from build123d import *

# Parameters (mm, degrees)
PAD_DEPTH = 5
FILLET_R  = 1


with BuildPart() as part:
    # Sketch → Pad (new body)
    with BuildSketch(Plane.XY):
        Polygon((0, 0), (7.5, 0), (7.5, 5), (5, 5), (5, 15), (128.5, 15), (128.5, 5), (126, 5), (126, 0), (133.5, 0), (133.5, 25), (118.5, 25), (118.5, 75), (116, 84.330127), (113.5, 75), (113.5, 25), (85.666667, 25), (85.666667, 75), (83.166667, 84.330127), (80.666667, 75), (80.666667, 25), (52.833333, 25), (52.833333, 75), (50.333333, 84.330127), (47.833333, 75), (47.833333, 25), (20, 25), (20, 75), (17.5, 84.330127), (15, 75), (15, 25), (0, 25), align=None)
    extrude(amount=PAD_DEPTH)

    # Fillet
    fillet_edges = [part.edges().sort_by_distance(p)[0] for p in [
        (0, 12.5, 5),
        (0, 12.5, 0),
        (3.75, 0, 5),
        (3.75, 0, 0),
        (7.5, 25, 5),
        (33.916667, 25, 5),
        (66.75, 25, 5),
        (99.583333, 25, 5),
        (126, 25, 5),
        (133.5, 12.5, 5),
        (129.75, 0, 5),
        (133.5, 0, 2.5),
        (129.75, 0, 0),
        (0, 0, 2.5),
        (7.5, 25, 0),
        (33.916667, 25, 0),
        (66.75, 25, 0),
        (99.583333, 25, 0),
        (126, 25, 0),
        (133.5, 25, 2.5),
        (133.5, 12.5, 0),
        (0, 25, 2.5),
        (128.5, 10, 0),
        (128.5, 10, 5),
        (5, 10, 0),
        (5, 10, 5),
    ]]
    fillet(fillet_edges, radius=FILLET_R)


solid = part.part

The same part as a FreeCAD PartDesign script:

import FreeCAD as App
import Part
import Sketcher
Q = App.Units.Quantity


def edges_at(feature, points):
    """Names of the edges that pass closest to the given points."""
    edges = feature.Shape.Edges
    near = lambda p: min(range(len(edges)), key=lambda i: edges[i].distToShape(Part.Vertex(*p))[0])
    return sorted({f"Edge{near(p) + 1}" for p in points})

doc = App.newDocument("Part")
body = doc.addObject("PartDesign::Body", "Body")

# Sketch on XY plane
sketch1 = body.newObject("Sketcher::SketchObject", "Sketch")
sketch1.AttachmentSupport = (doc.getObject("XY_Plane"), [""])
sketch1.MapMode = "FlatFace"
sketch1.addGeometry(Part.LineSegment(App.Vector(0, 0, 0), App.Vector(7.5, 0, 0)), False)
sketch1.addGeometry(Part.LineSegment(App.Vector(7.5, 0, 0), App.Vector(7.5, 5, 0)), False)
sketch1.addGeometry(Part.LineSegment(App.Vector(7.5, 5, 0), App.Vector(5, 5, 0)), False)
sketch1.addGeometry(Part.LineSegment(App.Vector(5, 5, 0), App.Vector(5, 15, 0)), False)
sketch1.addGeometry(Part.LineSegment(App.Vector(5, 15, 0), App.Vector(128.5, 15, 0)), False)
sketch1.addGeometry(Part.LineSegment(App.Vector(128.5, 15, 0), App.Vector(128.5, 5, 0)), False)
sketch1.addGeometry(Part.LineSegment(App.Vector(128.5, 5, 0), App.Vector(126, 5, 0)), False)
sketch1.addGeometry(Part.LineSegment(App.Vector(126, 5, 0), App.Vector(126, 0, 0)), False)
sketch1.addGeometry(Part.LineSegment(App.Vector(126, 0, 0), App.Vector(133.5, 0, 0)), False)
sketch1.addGeometry(Part.LineSegment(App.Vector(133.5, 0, 0), App.Vector(133.5, 25, 0)), False)
sketch1.addGeometry(Part.LineSegment(App.Vector(133.5, 25, 0), App.Vector(118.5, 25, 0)), False)
sketch1.addGeometry(Part.LineSegment(App.Vector(118.5, 25, 0), App.Vector(118.5, 75, 0)), False)
sketch1.addGeometry(Part.LineSegment(App.Vector(118.5, 75, 0), App.Vector(116, 84.3, 0)), False)
sketch1.addGeometry(Part.LineSegment(App.Vector(116, 84.3, 0), App.Vector(113.5, 75, 0)), False)
sketch1.addGeometry(Part.LineSegment(App.Vector(113.5, 75, 0), App.Vector(113.5, 25, 0)), False)
sketch1.addGeometry(Part.LineSegment(App.Vector(113.5, 25, 0), App.Vector(85.7, 25, 0)), False)
sketch1.addGeometry(Part.LineSegment(App.Vector(85.7, 25, 0), App.Vector(85.7, 75, 0)), False)
sketch1.addGeometry(Part.LineSegment(App.Vector(85.7, 75, 0), App.Vector(83.2, 84.3, 0)), False)
sketch1.addGeometry(Part.LineSegment(App.Vector(83.2, 84.3, 0), App.Vector(80.7, 75, 0)), False)
sketch1.addGeometry(Part.LineSegment(App.Vector(80.7, 75, 0), App.Vector(80.7, 25, 0)), False)
sketch1.addGeometry(Part.LineSegment(App.Vector(80.7, 25, 0), App.Vector(52.8, 25, 0)), False)
sketch1.addGeometry(Part.LineSegment(App.Vector(52.8, 25, 0), App.Vector(52.8, 75, 0)), False)
sketch1.addGeometry(Part.LineSegment(App.Vector(52.8, 75, 0), App.Vector(50.3, 84.3, 0)), False)
sketch1.addGeometry(Part.LineSegment(App.Vector(50.3, 84.3, 0), App.Vector(47.8, 75, 0)), False)
sketch1.addGeometry(Part.LineSegment(App.Vector(47.8, 75, 0), App.Vector(47.8, 25, 0)), False)
sketch1.addGeometry(Part.LineSegment(App.Vector(47.8, 25, 0), App.Vector(20, 25, 0)), False)
sketch1.addGeometry(Part.LineSegment(App.Vector(20, 25, 0), App.Vector(20, 75, 0)), False)
sketch1.addGeometry(Part.LineSegment(App.Vector(20, 75, 0), App.Vector(17.5, 84.3, 0)), False)
sketch1.addGeometry(Part.LineSegment(App.Vector(17.5, 84.3, 0), App.Vector(15, 75, 0)), False)
sketch1.addGeometry(Part.LineSegment(App.Vector(15, 75, 0), App.Vector(15, 25, 0)), False)
sketch1.addGeometry(Part.LineSegment(App.Vector(15, 25, 0), App.Vector(0, 25, 0)), False)
sketch1.addGeometry(Part.LineSegment(App.Vector(0, 25, 0), App.Vector(0, 0, 0)), False)
sketch1.addConstraint(Sketcher.Constraint("Coincident", 0, 2, 1, 1))
sketch1.addConstraint(Sketcher.Constraint("Coincident", 1, 2, 2, 1))
sketch1.addConstraint(Sketcher.Constraint("Coincident", 2, 2, 3, 1))
sketch1.addConstraint(Sketcher.Constraint("Coincident", 3, 2, 4, 1))
sketch1.addConstraint(Sketcher.Constraint("Coincident", 4, 2, 5, 1))
sketch1.addConstraint(Sketcher.Constraint("Coincident", 5, 2, 6, 1))
sketch1.addConstraint(Sketcher.Constraint("Coincident", 6, 2, 7, 1))
sketch1.addConstraint(Sketcher.Constraint("Coincident", 7, 2, 8, 1))
sketch1.addConstraint(Sketcher.Constraint("Coincident", 8, 2, 9, 1))
sketch1.addConstraint(Sketcher.Constraint("Coincident", 9, 2, 10, 1))
sketch1.addConstraint(Sketcher.Constraint("Coincident", 10, 2, 11, 1))
sketch1.addConstraint(Sketcher.Constraint("Coincident", 11, 2, 12, 1))
sketch1.addConstraint(Sketcher.Constraint("Coincident", 12, 2, 13, 1))
sketch1.addConstraint(Sketcher.Constraint("Coincident", 13, 2, 14, 1))
sketch1.addConstraint(Sketcher.Constraint("Coincident", 14, 2, 15, 1))
sketch1.addConstraint(Sketcher.Constraint("Coincident", 15, 2, 16, 1))
sketch1.addConstraint(Sketcher.Constraint("Coincident", 16, 2, 17, 1))
sketch1.addConstraint(Sketcher.Constraint("Coincident", 17, 2, 18, 1))
sketch1.addConstraint(Sketcher.Constraint("Coincident", 18, 2, 19, 1))
sketch1.addConstraint(Sketcher.Constraint("Coincident", 19, 2, 20, 1))
sketch1.addConstraint(Sketcher.Constraint("Coincident", 20, 2, 21, 1))
sketch1.addConstraint(Sketcher.Constraint("Coincident", 21, 2, 22, 1))
sketch1.addConstraint(Sketcher.Constraint("Coincident", 22, 2, 23, 1))
sketch1.addConstraint(Sketcher.Constraint("Coincident", 23, 2, 24, 1))
sketch1.addConstraint(Sketcher.Constraint("Coincident", 24, 2, 25, 1))
sketch1.addConstraint(Sketcher.Constraint("Coincident", 25, 2, 26, 1))
sketch1.addConstraint(Sketcher.Constraint("Coincident", 26, 2, 27, 1))
sketch1.addConstraint(Sketcher.Constraint("Coincident", 27, 2, 28, 1))
sketch1.addConstraint(Sketcher.Constraint("Coincident", 28, 2, 29, 1))
sketch1.addConstraint(Sketcher.Constraint("Coincident", 29, 2, 30, 1))
sketch1.addConstraint(Sketcher.Constraint("Coincident", 30, 2, 31, 1))
sketch1.addConstraint(Sketcher.Constraint("Coincident", 31, 2, 0, 1))
sketch1.addConstraint(Sketcher.Constraint("Horizontal", 0))
sketch1.addConstraint(Sketcher.Constraint("Vertical", 1))
sketch1.addConstraint(Sketcher.Constraint("Horizontal", 2))
sketch1.addConstraint(Sketcher.Constraint("Vertical", 3))
sketch1.addConstraint(Sketcher.Constraint("Horizontal", 4))
sketch1.addConstraint(Sketcher.Constraint("Vertical", 5))
sketch1.addConstraint(Sketcher.Constraint("Horizontal", 6))
sketch1.addConstraint(Sketcher.Constraint("Vertical", 7))
sketch1.addConstraint(Sketcher.Constraint("Horizontal", 8))
sketch1.addConstraint(Sketcher.Constraint("Vertical", 9))
sketch1.addConstraint(Sketcher.Constraint("Horizontal", 10))
sketch1.addConstraint(Sketcher.Constraint("Vertical", 11))
sketch1.addConstraint(Sketcher.Constraint("Vertical", 14))
sketch1.addConstraint(Sketcher.Constraint("Horizontal", 15))
sketch1.addConstraint(Sketcher.Constraint("Vertical", 16))
sketch1.addConstraint(Sketcher.Constraint("Vertical", 19))
sketch1.addConstraint(Sketcher.Constraint("Horizontal", 20))
sketch1.addConstraint(Sketcher.Constraint("Vertical", 21))
sketch1.addConstraint(Sketcher.Constraint("Vertical", 24))
sketch1.addConstraint(Sketcher.Constraint("Horizontal", 25))
sketch1.addConstraint(Sketcher.Constraint("Vertical", 26))
sketch1.addConstraint(Sketcher.Constraint("Vertical", 29))
sketch1.addConstraint(Sketcher.Constraint("Horizontal", 30))
sketch1.addConstraint(Sketcher.Constraint("Vertical", 31))
sketch1.addConstraint(Sketcher.Constraint("Coincident", 31, 2, -1, 1))
sketch1.addConstraint(Sketcher.Constraint("PointOnObject", 7, 2, -1))
sketch1.addConstraint(Sketcher.Constraint("Parallel", 12, 17))
sketch1.addConstraint(Sketcher.Constraint("Parallel", 13, 18))
sketch1.addConstraint(Sketcher.Constraint("Parallel", 17, 22))
sketch1.addConstraint(Sketcher.Constraint("Parallel", 18, 23))
sketch1.addConstraint(Sketcher.Constraint("Parallel", 22, 27))
sketch1.addConstraint(Sketcher.Constraint("Parallel", 23, 28))
sketch1.addConstraint(Sketcher.Constraint("Horizontal", 2, 2, 5, 2))
sketch1.addConstraint(Sketcher.Constraint("Horizontal", 11, 2, 13, 2))
sketch1.addConstraint(Sketcher.Constraint("Horizontal", 10, 2, 14, 2))
sketch1.addConstraint(Sketcher.Constraint("Horizontal", 13, 2, 16, 2))
sketch1.addConstraint(Sketcher.Constraint("Horizontal", 12, 2, 17, 2))
sketch1.addConstraint(Sketcher.Constraint("Horizontal", 16, 2, 18, 2))
sketch1.addConstraint(Sketcher.Constraint("Horizontal", 15, 2, 19, 2))
sketch1.addConstraint(Sketcher.Constraint("Horizontal", 18, 2, 21, 2))
sketch1.addConstraint(Sketcher.Constraint("Horizontal", 17, 2, 22, 2))
sketch1.addConstraint(Sketcher.Constraint("Horizontal", 21, 2, 23, 2))
sketch1.addConstraint(Sketcher.Constraint("Horizontal", 20, 2, 24, 2))
sketch1.addConstraint(Sketcher.Constraint("Horizontal", 23, 2, 26, 2))
sketch1.addConstraint(Sketcher.Constraint("Horizontal", 22, 2, 27, 2))
sketch1.addConstraint(Sketcher.Constraint("Horizontal", 26, 2, 28, 2))
sketch1.addConstraint(Sketcher.Constraint("Horizontal", 25, 2, 29, 2))
sketch1.addConstraint(Sketcher.Constraint("Equal", 2, 6))
sketch1.addConstraint(Sketcher.Constraint("Equal", 0, 8))
sketch1.addConstraint(Sketcher.Constraint("Equal", 15, 20))
sketch1.addConstraint(Sketcher.Constraint("Equal", 20, 25))
sketch1.addConstraint(Sketcher.Constraint("Equal", 10, 30))
sketch1.addConstraint(Sketcher.Constraint("Equal", 12, 13))
sketch1.addConstraint(Sketcher.Constraint("DistanceX", 10, 2, 10, 1, Q("15 mm")))
sketch1.addConstraint(Sketcher.Constraint("DistanceY", 1, 1, 1, 2, Q("5 mm")))
sketch1.addConstraint(Sketcher.Constraint("DistanceY", 3, 1, 3, 2, Q("10 mm")))
sketch1.addConstraint(Sketcher.Constraint("DistanceY", 9, 1, 9, 2, Q("25 mm")))
sketch1.addConstraint(Sketcher.Constraint("DistanceY", 11, 1, 11, 2, Q("50 mm")))
sketch1.addConstraint(Sketcher.Constraint("Angle", 12, Q("105 deg")))
sketch1.addConstraint(Sketcher.Constraint("DistanceX", 0, 1, 0, 2, Q("7.5 mm")))
sketch1.addConstraint(Sketcher.Constraint("DistanceX", 2, 2, 2, 1, Q("2.5 mm")))
sketch1.addConstraint(Sketcher.Constraint("DistanceX", 4, 1, 4, 2, Q("123.5 mm")))
sketch1.addConstraint(Sketcher.Constraint("DistanceX", -1, 1, 12, 2, Q("116 mm")))
pad1 = body.newObject("PartDesign::Pad", "Pad")
pad1.Profile = sketch1
pad1.Length = 5
doc.recompute()

fillet = body.newObject("PartDesign::Fillet", "Fillet")
fillet.Base = (pad1, edges_at(pad1, [
    (0, 12.5, 5),
    (0, 12.5, 0),
    (3.75, 0, 5),
    (3.75, 0, 0),
    (7.5, 25, 5),
    (33.917, 25, 5),
    (66.75, 25, 5),
    (99.583, 25, 5),
    (126, 25, 5),
    (133.5, 12.5, 5),
    (129.75, 0, 5),
    (133.5, 0, 2.5),
    (129.75, 0, 0),
    (0, 0, 2.5),
    (7.5, 25, 0),
    (33.917, 25, 0),
    (66.75, 25, 0),
    (99.583, 25, 0),
    (126, 25, 0),
    (133.5, 25, 2.5),
    (133.5, 12.5, 0),
    (0, 25, 2.5),
    (128.5, 10, 0),
    (128.5, 10, 5),
    (5, 10, 0),
    (5, 10, 5),
]))
fillet.Radius = 1

doc.recompute()
